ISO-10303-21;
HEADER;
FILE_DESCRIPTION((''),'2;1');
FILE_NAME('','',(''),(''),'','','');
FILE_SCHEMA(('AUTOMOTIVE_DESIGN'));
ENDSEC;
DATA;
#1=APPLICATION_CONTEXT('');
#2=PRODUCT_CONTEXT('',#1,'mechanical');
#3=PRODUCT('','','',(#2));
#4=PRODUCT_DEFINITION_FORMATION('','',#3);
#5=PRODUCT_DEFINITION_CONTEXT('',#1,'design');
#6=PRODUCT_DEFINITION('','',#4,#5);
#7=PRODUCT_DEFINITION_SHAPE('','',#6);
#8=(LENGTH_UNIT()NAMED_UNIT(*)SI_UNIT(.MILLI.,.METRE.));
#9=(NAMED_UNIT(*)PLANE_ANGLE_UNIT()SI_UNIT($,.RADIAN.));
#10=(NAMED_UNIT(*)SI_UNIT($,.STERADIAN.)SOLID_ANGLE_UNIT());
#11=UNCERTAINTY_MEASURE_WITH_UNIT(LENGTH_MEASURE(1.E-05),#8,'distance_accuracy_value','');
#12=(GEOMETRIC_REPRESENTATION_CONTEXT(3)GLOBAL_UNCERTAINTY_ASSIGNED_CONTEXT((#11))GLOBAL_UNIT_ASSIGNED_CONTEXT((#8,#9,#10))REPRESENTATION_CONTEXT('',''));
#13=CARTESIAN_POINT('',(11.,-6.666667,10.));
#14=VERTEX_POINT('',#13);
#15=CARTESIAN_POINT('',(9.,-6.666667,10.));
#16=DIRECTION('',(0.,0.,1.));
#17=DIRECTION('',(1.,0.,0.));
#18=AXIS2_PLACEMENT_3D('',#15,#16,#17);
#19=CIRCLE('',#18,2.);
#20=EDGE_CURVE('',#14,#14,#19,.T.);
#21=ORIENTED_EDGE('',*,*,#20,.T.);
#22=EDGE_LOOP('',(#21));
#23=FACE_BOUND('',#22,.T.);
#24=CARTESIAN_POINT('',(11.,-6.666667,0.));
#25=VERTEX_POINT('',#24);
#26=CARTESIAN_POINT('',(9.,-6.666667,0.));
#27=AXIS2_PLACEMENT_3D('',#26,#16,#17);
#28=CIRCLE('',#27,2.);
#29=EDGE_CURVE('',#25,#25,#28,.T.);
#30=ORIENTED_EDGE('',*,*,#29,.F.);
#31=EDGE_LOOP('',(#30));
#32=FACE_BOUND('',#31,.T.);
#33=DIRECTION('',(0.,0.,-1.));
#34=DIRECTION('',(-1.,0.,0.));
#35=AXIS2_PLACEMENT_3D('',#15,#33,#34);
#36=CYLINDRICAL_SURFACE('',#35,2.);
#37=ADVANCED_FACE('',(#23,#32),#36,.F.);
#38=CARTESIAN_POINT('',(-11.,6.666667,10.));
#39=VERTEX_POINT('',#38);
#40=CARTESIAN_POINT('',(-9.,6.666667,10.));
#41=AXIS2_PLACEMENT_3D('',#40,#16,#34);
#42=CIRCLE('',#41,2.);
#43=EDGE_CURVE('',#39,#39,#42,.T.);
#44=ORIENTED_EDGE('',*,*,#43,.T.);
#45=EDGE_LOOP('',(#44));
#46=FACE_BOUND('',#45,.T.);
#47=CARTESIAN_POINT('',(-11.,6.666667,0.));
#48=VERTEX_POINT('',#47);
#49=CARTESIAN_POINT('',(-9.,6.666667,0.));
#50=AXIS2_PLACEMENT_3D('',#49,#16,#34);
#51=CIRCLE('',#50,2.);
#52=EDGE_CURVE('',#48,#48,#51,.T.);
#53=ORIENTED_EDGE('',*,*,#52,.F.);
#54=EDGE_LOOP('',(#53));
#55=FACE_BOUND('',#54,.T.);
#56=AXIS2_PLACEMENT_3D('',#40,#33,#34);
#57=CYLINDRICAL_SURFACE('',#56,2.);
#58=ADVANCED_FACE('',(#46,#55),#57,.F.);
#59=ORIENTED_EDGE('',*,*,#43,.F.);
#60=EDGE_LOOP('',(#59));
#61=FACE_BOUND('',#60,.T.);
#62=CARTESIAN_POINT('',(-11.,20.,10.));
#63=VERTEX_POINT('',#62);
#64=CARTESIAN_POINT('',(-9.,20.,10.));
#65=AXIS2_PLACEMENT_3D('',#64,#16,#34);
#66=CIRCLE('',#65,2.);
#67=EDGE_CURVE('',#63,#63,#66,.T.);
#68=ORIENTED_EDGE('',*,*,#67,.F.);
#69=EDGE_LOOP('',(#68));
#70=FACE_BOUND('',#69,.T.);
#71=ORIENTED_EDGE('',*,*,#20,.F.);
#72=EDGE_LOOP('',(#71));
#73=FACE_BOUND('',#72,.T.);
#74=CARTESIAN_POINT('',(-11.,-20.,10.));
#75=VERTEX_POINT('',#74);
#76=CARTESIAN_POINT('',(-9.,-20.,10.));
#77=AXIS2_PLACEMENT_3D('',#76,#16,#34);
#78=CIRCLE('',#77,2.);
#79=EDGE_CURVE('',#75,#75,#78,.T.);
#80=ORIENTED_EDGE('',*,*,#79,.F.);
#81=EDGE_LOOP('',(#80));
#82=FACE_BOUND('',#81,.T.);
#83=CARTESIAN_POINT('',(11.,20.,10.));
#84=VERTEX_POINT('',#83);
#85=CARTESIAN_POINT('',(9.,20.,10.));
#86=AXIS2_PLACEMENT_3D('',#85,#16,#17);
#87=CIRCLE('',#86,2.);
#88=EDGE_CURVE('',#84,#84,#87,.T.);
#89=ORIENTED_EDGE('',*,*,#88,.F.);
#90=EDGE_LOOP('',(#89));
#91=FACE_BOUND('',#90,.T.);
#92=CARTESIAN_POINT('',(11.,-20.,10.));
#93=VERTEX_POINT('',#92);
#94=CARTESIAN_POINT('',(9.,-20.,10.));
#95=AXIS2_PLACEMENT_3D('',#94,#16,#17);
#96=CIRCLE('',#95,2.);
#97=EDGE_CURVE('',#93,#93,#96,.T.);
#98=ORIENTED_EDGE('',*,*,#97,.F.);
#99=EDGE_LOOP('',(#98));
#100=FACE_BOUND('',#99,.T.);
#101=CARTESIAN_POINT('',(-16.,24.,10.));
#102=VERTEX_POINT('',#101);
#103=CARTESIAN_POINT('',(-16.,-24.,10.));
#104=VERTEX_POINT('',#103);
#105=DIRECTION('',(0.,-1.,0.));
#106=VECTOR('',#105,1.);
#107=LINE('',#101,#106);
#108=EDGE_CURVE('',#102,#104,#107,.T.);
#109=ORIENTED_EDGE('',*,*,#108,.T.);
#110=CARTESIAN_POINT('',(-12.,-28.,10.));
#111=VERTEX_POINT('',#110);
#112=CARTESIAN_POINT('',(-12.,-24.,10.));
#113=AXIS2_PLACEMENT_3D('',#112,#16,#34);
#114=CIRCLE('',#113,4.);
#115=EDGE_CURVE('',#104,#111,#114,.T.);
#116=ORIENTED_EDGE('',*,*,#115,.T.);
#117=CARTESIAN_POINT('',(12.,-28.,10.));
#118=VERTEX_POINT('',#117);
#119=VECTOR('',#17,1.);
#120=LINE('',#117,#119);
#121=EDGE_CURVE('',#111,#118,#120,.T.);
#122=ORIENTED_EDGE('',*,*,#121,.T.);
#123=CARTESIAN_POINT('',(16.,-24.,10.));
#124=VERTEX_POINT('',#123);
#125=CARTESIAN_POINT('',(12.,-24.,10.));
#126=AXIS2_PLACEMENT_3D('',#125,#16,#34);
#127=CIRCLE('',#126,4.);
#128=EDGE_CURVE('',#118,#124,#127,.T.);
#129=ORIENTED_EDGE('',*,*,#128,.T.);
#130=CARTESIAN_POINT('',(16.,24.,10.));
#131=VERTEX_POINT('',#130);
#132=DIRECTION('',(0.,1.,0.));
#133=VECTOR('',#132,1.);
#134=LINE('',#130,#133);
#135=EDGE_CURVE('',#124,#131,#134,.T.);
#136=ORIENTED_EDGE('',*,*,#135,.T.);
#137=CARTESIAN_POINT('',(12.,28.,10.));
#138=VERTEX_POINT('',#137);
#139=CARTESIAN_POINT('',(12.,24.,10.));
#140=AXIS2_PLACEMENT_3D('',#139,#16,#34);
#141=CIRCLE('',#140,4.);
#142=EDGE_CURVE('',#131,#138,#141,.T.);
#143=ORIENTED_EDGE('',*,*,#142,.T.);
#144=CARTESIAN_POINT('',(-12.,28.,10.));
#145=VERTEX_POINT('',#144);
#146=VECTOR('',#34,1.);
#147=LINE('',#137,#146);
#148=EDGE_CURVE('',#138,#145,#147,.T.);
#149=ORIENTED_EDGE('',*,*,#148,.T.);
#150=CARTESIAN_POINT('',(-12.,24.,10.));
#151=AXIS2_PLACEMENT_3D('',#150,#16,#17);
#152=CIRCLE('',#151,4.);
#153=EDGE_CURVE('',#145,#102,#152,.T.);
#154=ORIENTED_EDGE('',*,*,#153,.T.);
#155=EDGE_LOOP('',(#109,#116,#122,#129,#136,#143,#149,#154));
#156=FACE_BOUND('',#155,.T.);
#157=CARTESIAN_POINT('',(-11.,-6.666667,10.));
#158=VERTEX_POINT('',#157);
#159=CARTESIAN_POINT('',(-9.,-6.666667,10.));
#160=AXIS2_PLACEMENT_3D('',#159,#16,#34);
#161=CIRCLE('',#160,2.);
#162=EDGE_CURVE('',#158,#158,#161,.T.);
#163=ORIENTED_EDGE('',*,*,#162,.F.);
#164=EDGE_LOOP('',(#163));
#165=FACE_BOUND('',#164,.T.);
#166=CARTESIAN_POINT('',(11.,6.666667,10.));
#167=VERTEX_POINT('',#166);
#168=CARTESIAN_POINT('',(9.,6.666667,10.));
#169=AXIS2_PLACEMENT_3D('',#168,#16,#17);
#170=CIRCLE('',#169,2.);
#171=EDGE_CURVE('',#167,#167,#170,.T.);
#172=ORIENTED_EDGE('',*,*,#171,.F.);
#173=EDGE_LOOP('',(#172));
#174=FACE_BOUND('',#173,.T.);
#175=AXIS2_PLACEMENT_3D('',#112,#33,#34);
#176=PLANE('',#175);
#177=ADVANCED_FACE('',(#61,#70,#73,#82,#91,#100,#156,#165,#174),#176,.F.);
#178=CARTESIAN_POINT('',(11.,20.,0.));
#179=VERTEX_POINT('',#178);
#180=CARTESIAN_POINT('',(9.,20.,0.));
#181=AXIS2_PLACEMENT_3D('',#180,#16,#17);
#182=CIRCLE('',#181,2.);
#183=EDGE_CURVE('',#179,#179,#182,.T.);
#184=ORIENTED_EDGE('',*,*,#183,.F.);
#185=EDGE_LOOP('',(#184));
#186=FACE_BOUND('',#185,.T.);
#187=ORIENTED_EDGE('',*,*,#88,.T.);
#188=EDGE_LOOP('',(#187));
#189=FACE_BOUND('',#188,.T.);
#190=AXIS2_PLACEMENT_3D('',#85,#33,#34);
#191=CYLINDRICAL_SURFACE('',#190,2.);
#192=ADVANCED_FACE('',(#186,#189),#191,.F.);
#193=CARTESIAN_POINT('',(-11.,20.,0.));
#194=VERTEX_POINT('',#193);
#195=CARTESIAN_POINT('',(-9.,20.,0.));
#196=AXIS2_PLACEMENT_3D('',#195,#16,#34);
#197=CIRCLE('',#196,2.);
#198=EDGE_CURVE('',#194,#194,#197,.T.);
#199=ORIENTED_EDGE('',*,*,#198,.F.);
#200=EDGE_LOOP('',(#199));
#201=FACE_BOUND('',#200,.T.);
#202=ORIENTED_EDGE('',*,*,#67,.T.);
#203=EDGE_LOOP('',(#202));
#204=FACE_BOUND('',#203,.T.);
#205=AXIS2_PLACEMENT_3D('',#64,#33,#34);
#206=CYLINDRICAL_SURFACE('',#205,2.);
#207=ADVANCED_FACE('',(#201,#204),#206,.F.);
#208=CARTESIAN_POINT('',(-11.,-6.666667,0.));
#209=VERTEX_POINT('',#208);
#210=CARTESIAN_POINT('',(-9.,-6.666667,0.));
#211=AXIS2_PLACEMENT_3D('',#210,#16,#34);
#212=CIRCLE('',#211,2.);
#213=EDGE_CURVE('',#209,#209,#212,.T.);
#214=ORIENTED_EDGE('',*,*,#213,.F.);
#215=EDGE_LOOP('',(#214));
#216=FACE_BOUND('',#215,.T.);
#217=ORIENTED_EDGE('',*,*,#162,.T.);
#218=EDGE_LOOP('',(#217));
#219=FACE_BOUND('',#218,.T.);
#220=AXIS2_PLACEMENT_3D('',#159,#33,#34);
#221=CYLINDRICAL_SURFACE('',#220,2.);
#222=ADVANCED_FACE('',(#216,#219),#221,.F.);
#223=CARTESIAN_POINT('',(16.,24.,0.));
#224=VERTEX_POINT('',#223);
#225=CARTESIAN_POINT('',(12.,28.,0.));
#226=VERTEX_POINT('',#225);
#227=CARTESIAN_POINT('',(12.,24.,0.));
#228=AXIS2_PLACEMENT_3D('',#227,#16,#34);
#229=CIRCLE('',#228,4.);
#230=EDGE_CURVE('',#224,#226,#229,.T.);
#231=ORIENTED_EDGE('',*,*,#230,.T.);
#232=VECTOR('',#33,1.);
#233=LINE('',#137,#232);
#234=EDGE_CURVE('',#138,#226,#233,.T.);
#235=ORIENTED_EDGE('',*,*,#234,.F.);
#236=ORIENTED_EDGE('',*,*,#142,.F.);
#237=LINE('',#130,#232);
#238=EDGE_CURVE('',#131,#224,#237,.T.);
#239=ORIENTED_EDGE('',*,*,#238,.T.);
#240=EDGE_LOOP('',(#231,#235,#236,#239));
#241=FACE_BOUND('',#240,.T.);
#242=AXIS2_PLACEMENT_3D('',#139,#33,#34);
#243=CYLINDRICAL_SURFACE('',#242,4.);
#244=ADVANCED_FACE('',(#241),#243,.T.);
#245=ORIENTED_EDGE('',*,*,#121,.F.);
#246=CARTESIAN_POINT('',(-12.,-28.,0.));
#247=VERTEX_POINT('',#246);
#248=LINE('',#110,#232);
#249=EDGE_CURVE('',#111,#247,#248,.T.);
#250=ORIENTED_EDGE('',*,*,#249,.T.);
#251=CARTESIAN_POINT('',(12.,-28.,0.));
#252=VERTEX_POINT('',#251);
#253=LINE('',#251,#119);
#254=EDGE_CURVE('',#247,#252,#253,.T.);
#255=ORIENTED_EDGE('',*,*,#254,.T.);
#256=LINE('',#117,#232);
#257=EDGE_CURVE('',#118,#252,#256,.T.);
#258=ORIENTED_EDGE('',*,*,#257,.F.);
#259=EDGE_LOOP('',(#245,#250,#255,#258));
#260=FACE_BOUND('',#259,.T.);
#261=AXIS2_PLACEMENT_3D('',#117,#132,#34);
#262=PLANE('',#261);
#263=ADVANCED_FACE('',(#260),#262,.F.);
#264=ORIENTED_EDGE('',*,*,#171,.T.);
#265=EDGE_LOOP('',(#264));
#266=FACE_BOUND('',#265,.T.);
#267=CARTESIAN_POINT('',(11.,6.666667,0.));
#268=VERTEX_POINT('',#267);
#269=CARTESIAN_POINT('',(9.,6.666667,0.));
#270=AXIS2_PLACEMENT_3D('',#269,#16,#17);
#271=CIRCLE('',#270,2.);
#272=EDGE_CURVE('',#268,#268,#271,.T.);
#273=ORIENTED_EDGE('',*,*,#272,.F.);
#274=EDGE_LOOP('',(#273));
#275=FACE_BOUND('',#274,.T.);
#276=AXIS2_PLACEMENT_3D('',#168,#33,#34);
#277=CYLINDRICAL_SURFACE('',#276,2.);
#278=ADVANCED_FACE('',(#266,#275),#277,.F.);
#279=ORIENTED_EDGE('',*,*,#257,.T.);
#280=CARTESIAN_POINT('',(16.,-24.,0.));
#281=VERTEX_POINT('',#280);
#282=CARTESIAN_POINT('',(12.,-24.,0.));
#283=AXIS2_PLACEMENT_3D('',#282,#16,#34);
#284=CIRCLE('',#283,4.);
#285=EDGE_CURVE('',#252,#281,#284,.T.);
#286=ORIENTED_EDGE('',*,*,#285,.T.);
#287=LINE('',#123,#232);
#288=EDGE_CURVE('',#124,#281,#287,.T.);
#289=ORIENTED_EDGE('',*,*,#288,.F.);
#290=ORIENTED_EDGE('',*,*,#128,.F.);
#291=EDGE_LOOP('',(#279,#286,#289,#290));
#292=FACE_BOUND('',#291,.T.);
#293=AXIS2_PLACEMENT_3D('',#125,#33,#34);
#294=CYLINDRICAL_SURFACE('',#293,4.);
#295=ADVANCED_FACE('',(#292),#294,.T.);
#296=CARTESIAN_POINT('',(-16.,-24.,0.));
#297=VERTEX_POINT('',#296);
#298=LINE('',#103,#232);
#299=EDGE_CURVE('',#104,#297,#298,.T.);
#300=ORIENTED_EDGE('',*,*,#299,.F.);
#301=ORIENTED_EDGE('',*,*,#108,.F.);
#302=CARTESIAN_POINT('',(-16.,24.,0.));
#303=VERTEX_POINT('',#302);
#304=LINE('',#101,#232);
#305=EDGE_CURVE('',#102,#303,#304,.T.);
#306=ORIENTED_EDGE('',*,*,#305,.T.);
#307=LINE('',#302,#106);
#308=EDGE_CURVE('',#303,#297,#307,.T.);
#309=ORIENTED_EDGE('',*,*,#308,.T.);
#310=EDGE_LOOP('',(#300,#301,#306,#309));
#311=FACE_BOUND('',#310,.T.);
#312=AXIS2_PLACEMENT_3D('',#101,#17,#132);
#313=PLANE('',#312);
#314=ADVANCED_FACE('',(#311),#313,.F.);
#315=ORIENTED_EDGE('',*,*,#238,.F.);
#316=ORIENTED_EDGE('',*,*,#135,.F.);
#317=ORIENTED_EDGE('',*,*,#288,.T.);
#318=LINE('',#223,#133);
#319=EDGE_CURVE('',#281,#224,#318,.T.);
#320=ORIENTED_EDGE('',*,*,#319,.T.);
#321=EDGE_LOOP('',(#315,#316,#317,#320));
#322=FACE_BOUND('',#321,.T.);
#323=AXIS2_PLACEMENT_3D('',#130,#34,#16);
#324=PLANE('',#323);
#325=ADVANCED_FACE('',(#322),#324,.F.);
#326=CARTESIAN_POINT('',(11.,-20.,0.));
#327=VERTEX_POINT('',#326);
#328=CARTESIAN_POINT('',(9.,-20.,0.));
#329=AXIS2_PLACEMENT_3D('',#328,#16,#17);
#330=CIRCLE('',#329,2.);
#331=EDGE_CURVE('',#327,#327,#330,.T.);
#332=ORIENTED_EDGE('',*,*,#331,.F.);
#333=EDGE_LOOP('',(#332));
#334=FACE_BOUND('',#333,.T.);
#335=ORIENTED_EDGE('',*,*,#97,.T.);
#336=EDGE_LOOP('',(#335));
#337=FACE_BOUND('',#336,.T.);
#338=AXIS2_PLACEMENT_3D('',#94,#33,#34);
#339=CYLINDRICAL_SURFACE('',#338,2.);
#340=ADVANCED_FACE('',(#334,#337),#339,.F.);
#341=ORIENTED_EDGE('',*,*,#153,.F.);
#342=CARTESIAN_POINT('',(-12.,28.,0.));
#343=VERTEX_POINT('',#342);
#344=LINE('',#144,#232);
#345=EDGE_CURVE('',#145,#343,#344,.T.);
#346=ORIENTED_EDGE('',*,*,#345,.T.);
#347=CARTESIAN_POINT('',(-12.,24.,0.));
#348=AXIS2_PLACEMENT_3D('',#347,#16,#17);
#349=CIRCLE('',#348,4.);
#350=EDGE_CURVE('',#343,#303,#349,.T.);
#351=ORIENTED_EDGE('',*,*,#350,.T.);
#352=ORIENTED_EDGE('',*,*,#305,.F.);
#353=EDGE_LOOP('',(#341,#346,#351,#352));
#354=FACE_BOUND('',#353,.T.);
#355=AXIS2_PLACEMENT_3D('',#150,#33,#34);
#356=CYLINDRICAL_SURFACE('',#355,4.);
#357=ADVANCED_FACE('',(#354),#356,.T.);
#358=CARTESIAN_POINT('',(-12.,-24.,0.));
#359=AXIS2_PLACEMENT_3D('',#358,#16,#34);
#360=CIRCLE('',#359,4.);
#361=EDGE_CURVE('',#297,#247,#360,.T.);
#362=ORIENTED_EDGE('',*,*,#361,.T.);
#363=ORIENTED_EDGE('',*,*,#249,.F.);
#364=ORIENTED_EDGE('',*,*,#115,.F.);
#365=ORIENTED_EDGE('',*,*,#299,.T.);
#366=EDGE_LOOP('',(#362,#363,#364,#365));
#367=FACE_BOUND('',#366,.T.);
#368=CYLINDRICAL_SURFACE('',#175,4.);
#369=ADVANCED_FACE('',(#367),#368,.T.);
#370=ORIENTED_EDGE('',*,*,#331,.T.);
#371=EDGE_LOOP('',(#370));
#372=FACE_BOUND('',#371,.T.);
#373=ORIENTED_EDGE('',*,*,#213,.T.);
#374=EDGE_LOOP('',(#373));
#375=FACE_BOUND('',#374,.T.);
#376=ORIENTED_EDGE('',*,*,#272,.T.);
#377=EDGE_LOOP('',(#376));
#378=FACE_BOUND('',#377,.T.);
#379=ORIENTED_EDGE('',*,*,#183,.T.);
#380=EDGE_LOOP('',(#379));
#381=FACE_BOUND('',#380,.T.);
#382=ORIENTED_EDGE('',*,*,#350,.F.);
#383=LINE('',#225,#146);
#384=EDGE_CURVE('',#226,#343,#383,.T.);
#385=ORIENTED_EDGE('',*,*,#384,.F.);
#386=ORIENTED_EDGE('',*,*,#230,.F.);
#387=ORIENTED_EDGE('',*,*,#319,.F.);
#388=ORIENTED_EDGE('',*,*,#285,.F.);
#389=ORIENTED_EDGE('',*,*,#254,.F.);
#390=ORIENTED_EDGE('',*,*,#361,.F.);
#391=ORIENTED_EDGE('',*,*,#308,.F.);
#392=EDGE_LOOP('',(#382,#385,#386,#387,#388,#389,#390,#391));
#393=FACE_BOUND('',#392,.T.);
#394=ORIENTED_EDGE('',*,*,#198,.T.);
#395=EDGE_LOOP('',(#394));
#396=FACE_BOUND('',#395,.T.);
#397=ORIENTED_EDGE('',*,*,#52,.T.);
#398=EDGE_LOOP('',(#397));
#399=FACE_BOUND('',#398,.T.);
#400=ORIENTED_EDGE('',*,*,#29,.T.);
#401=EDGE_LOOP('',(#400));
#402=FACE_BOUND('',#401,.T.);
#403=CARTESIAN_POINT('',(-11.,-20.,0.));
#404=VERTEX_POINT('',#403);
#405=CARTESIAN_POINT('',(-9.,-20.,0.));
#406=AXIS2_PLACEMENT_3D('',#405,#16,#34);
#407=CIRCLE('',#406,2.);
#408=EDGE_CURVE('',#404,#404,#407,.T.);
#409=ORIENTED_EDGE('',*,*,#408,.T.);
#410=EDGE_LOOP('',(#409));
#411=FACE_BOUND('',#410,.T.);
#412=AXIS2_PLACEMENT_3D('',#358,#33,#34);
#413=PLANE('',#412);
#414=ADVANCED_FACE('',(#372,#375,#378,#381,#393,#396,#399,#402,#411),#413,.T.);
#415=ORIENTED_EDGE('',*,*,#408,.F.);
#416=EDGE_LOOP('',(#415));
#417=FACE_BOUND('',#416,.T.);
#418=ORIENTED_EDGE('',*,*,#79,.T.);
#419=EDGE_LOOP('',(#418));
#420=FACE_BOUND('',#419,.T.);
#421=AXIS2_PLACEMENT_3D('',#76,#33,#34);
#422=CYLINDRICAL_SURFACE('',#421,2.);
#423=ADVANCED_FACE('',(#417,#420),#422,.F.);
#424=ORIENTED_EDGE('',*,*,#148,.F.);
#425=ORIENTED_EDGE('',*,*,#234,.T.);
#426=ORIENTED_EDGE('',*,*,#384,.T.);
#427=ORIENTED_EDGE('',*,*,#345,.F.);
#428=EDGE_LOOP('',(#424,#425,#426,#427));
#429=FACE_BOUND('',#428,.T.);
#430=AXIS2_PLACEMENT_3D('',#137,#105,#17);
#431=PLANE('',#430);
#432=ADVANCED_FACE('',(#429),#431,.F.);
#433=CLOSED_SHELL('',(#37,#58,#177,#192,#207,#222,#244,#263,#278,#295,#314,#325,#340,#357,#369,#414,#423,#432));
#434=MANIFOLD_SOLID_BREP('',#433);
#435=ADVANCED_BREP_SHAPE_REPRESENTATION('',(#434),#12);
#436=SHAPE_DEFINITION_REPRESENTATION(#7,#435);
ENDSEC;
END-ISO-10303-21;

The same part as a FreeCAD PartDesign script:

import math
import FreeCAD as App
import Part
import Sketcher
from FreeCAD import Vector

doc = App.newDocument("Part")
body = doc.addObject("PartDesign::Body", "Body")

sketch1 = doc.addObject("Sketcher::SketchObject", "Sketch")
body.addObject(sketch1)
sketch1.AttachmentSupport = (doc.XY_Plane, [""])
sketch1.MapMode = "FlatFace"
sketch1.addGeometry(Part.LineSegment(Vector(12, 28, 0), Vector(-12, 28, 0)), False)
sketch1.addGeometry(Part.ArcOfCircle(Part.Circle(Vector(-12, 24, 0), Vector(0, 0, 1), 4), math.radians(90), math.radians(180)), False)
sketch1.addGeometry(Part.LineSegment(Vector(-16, 24, 0), Vector(-16, -24, 0)), False)
sketch1.addGeometry(Part.ArcOfCircle(Part.Circle(Vector(-12, -24, 0), Vector(0, 0, 1), 4), math.radians(180), math.radians(270)), False)
sketch1.addGeometry(Part.LineSegment(Vector(-12, -28, 0), Vector(12, -28, 0)), False)
sketch1.addGeometry(Part.ArcOfCircle(Part.Circle(Vector(12, -24, 0), Vector(0, 0, 1), 4), math.radians(-90), math.radians(0)), False)
sketch1.addGeometry(Part.LineSegment(Vector(16, -24, 0), Vector(16, 24, 0)), False)
sketch1.addGeometry(Part.ArcOfCircle(Part.Circle(Vector(12, 24, 0), Vector(0, 0, 1), 4), math.radians(0), math.radians(90)), False)
sketch1.addGeometry(Part.Circle(Vector(-9, -20, 0), Vector(0, 0, 1), 2), False)
sketch1.addGeometry(Part.Circle(Vector(-9, -6.666667, 0), Vector(0, 0, 1), 2), False)
sketch1.addGeometry(Part.Circle(Vector(9, -20, 0), Vector(0, 0, 1), 2), False)
sketch1.addGeometry(Part.Circle(Vector(9, -6.666667, 0), Vector(0, 0, 1), 2), False)
sketch1.addGeometry(Part.Circle(Vector(-9, 6.666667, 0), Vector(0, 0, 1), 2), False)
sketch1.addGeometry(Part.Circle(Vector(-9, 20, 0), Vector(0, 0, 1), 2), False)
sketch1.addGeometry(Part.Circle(Vector(9, 6.666667, 0), Vector(0, 0, 1), 2), False)
sketch1.addGeometry(Part.Circle(Vector(9, 20, 0), Vector(0, 0, 1), 2), False)
sketch1.addConstraint(Sketcher.Constraint("Tangent", 0, 2, 1, 1))
sketch1.addConstraint(Sketcher.Constraint("Tangent", 1, 2, 2, 1))
sketch1.addConstraint(Sketcher.Constraint("Tangent", 2, 2, 3, 1))
sketch1.addConstraint(Sketcher.Constraint("Tangent", 3, 2, 4, 1))
sketch1.addConstraint(Sketcher.Constraint("Tangent", 4, 2, 5, 1))
sketch1.addConstraint(Sketcher.Constraint("Tangent", 5, 2, 6, 1))
sketch1.addConstraint(Sketcher.Constraint("Tangent", 6, 2, 7, 1))
sketch1.addConstraint(Sketcher.Constraint("Tangent", 7, 2, 0, 1))
sketch1.addConstraint(Sketcher.Constraint("Horizontal", 0))
sketch1.addConstraint(Sketcher.Constraint("Vertical", 2))
sketch1.addConstraint(Sketcher.Constraint("Horizontal", 4))
sketch1.addConstraint(Sketcher.Constraint("Vertical", 6))
sketch1.addConstraint(Sketcher.Constraint("Equal", 1, 3))
sketch1.addConstraint(Sketcher.Constraint("Equal", 3, 5))
sketch1.addConstraint(Sketcher.Constraint("Equal", 5, 7))
sketch1.addConstraint(Sketcher.Constraint("Equal", 8, 9))
sketch1.addConstraint(Sketcher.Constraint("Equal", 9, 10))
sketch1.addConstraint(Sketcher.Constraint("Equal", 10, 11))
sketch1.addConstraint(Sketcher.Constraint("Equal", 11, 12))
sketch1.addConstraint(Sketcher.Constraint("Equal", 12, 13))
sketch1.addConstraint(Sketcher.Constraint("Equal", 13, 14))
sketch1.addConstraint(Sketcher.Constraint("Equal", 14, 15))
sketch1.addConstraint(Sketcher.Constraint("Symmetric", 1, 3, 5, 3, -1, 1))
sketch1.addConstraint(Sketcher.Constraint("Symmetric", 11, 3, 12, 3, -1, 1))
sketch1.addConstraint(Sketcher.Constraint("Symmetric", 10, 3, 13, 3, -1, 1))
sketch1.addConstraint(Sketcher.Constraint("Symmetric", 9, 3, 14, 3, -1, 1))
sketch1.addConstraint(Sketcher.Constraint("Symmetric", 8, 3, 15, 3, -1, 1))
sketch1.addConstraint(Sketcher.Constraint("Symmetric", 8, 3, 10, 3, -2))
sketch1.addConstraint(Sketcher.Constraint("Symmetric", 9, 3, 11, 3, -2))
sketch1.addConstraint(Sketcher.Constraint("Vertical", 8, 3, 9, 3))
sketch1.addConstraint(Sketcher.Constraint("Diameter", 8, 4.0))
sketch1.addConstraint(Sketcher.Constraint("Radius", 1, 4.0))
sketch1.addConstraint(Sketcher.Constraint("DistanceX", 0, 2, 0, 1, 24.0))
sketch1.addConstraint(Sketcher.Constraint("DistanceY", 2, 2, 2, 1, 48.0))
sketch1.addConstraint(Sketcher.Constraint("DistanceX", 8, 3, -1, 1, 9.0))
sketch1.addConstraint(Sketcher.Constraint("DistanceY", 8, 3, -1, 1, 20.0))
sketch1.addConstraint(Sketcher.Constraint("DistanceY", 9, 3, -1, 1, 6.666667))
pad1 = doc.addObject("PartDesign::Pad", "Pad")
body.addObject(pad1)
pad1.Profile = sketch1
pad1.Length = 10

doc.recompute()
